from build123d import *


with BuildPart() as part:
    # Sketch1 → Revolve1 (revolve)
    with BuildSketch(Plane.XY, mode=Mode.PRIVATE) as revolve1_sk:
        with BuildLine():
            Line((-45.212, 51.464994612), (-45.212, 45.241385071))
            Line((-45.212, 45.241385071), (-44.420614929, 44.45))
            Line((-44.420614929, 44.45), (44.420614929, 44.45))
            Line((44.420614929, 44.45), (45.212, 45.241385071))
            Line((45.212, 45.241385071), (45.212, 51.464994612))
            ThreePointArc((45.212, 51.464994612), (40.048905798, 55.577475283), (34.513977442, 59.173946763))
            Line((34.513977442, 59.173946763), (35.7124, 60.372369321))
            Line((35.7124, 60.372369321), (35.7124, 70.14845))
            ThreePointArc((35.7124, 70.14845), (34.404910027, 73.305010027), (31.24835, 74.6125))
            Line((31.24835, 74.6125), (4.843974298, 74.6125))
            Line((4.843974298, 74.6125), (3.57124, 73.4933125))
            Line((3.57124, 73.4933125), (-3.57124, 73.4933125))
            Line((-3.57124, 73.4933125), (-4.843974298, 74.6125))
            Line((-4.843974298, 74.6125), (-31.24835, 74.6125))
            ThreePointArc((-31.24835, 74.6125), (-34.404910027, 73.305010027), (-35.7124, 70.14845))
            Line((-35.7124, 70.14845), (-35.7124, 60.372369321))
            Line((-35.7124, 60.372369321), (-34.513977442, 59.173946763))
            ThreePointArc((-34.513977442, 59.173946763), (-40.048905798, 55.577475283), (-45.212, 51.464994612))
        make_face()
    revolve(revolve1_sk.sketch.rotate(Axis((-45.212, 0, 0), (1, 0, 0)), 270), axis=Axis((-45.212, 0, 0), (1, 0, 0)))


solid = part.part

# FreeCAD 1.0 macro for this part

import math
import FreeCAD as App
import Part
import Sketcher

V = App.Vector
Q = App.Units.Quantity

doc = App.newDocument("Part")
body = doc.addObject("PartDesign::Body", "Body")

# Sketch on XY plane
sketch1 = body.newObject("Sketcher::SketchObject", "Sketch")
sketch1.AttachmentSupport = (doc.getObject("XY_Plane"), [""])
sketch1.MapMode = "FlatFace"
sketch1.addGeometry(Part.LineSegment(V(-45.2, 51.5, 0), V(-45.2, 45.2, 0)), False)
sketch1.addGeometry(Part.LineSegment(V(-45.2, 45.2, 0), V(-44.4, 44.5, 0)), False)
sketch1.addGeometry(Part.LineSegment(V(-44.4, 44.5, 0), V(44.4, 44.5, 0)), False)
sketch1.addGeometry(Part.LineSegment(V(44.4, 44.5, 0), V(45.2, 45.2, 0)), False)
sketch1.addGeometry(Part.LineSegment(V(45.2, 45.2, 0), V(45.2, 51.5, 0)), False)
sketch1.addGeometry(Part.ArcOfCircle(Part.Circle(V(0, 0, 0), V(0, 0, 1), 68.5), math.radians(48.7), math.radians(59.75)), False)
sketch1.addGeometry(Part.LineSegment(V(34.5, 59.2, 0), V(35.7, 60.4, 0)), False)
sketch1.addGeometry(Part.LineSegment(V(35.7, 60.4, 0), V(35.7, 70.1, 0)), False)
sketch1.addGeometry(Part.ArcOfCircle(Part.Circle(V(31.2, 70.1, 0), V(0, 0, 1), 4.5), math.radians(0), math.radians(90)), False)
sketch1.addGeometry(Part.LineSegment(V(31.2, 74.6, 0), V(4.8, 74.6, 0)), False)
sketch1.addGeometry(Part.LineSegment(V(4.8, 74.6, 0), V(3.6, 73.5, 0)), False)
sketch1.addGeometry(Part.LineSegment(V(3.6, 73.5, 0), V(-3.6, 73.5, 0)), False)
sketch1.addGeometry(Part.LineSegment(V(-3.6, 73.5, 0), V(-4.8, 74.6, 0)), False)
sketch1.addGeometry(Part.LineSegment(V(-4.8, 74.6, 0), V(-31.2, 74.6, 0)), False)
sketch1.addGeometry(Part.ArcOfCircle(Part.Circle(V(-31.2, 70.1, 0), V(0, 0, 1), 4.5), math.radians(90), math.radians(180)), False)
sketch1.addGeometry(Part.LineSegment(V(-35.7, 70.1, 0), V(-35.7, 60.4, 0)), False)
sketch1.addGeometry(Part.LineSegment(V(-35.7, 60.4, 0), V(-34.5, 59.2, 0)), False)
sketch1.addGeometry(Part.ArcOfCircle(Part.Circle(V(0, 0, 0), V(0, 0, 1), 68.5), math.radians(120.25), math.radians(131.3)), False)
sketch1.addConstraint(Sketcher.Constraint("Coincident", 0, 2, 1, 1))
sketch1.addConstraint(Sketcher.Constraint("Coincident", 1, 2, 2, 1))
sketch1.addConstraint(Sketcher.Constraint("Coincident", 2, 2, 3, 1))
sketch1.addConstraint(Sketcher.Constraint("Coincident", 3, 2, 4, 1))
sketch1.addConstraint(Sketcher.Constraint("Coincident", 4, 2, 5, 1))
sketch1.addConstraint(Sketcher.Constraint("Coincident", 5, 2, 6, 1))
sketch1.addConstraint(Sketcher.Constraint("Coincident", 6, 2, 7, 1))
sketch1.addConstraint(Sketcher.Constraint("Tangent", 7, 2, 8, 1))
sketch1.addConstraint(Sketcher.Constraint("Tangent", 8, 2, 9, 1))
sketch1.addConstraint(Sketcher.Constraint("Coincident", 9, 2, 10, 1))
sketch1.addConstraint(Sketcher.Constraint("Coincident", 10, 2, 11, 1))
sketch1.addConstraint(Sketcher.Constraint("Coincident", 11, 2, 12, 1))
sketch1.addConstraint(Sketcher.Constraint("Coincident", 12, 2, 13, 1))
sketch1.addConstraint(Sketcher.Constraint("Tangent", 13, 2, 14, 1))
sketch1.addConstraint(Sketcher.Constraint("Tangent", 14, 2, 15, 1))
sketch1.addConstraint(Sketcher.Constraint("Coincident", 15, 2, 16, 1))
sketch1.addConstraint(Sketcher.Constraint("Coincident", 16, 2, 17, 1))
sketch1.addConstraint(Sketcher.Constraint("Coincident", 17, 2, 0, 1))
sketch1.addConstraint(Sketcher.Constraint("Vertical", 0))
sketch1.addConstraint(Sketcher.Constraint("Horizontal", 2))
sketch1.addConstraint(Sketcher.Constraint("Vertical", 4))
sketch1.addConstraint(Sketcher.Constraint("Vertical", 7))
sketch1.addConstraint(Sketcher.Constraint("Horizontal", 9))
sketch1.addConstraint(Sketcher.Constraint("Horizontal", 11))
sketch1.addConstraint(Sketcher.Constraint("Horizontal", 13))
sketch1.addConstraint(Sketcher.Constraint("Vertical", 15))
sketch1.addConstraint(Sketcher.Constraint("Coincident", 5, 3, -1, 1))
sketch1.addConstraint(Sketcher.Constraint("Coincident", 17, 3, -1, 1))
sketch1.addConstraint(Sketcher.Constraint("Equal", 8, 14))
sketch1.addConstraint(Sketcher.Constraint("Equal", 5, 17))
sketch1.addConstraint(Sketcher.Constraint("Symmetric", 8, 3, 14, 3, -2))
sketch1.addConstraint(Sketcher.Constraint("Symmetric", 0, 2, 3, 2, -2))
sketch1.addConstraint(Sketcher.Constraint("Perpendicular", 1, 3))
sketch1.addConstraint(Sketcher.Constraint("Parallel", 3, 6))
sketch1.addConstraint(Sketcher.Constraint("Perpendicular", 6, 16))
sketch1.addConstraint(Sketcher.Constraint("Horizontal", 6, 2, 15, 2))
sketch1.addConstraint(Sketcher.Constraint("Horizontal", 5, 2, 16, 2))
sketch1.addConstraint(Sketcher.Constraint("Equal", 9, 13))
sketch1.addConstraint(Sketcher.Constraint("Equal", 6, 10))
sketch1.addConstraint(Sketcher.Constraint("Equal", 10, 12))
sketch1.addConstraint(Sketcher.Constraint("Radius", 5, Q("2.697 in")))
sketch1.addConstraint(Sketcher.Constraint("DistanceX", 0, 2, -1, 1, Q("1.78 in")))
sketch1.addConstraint(Sketcher.Constraint("DistanceY", -1, 1, 1, 2, Q("1.75 in")))
sketch1.addConstraint(Sketcher.Constraint("DistanceX", 11, 2, 11, 1, Q("0.2812 in")))
sketch1.addConstraint(Sketcher.Constraint("DistanceX", -1, 1, 6, 2, Q("1.406 in")))
sketch1.addConstraint(Sketcher.Constraint("DistanceY", -1, 1, 8, 2, Q("2.9375 in")))
sketch1.addConstraint(Sketcher.Constraint("Radius", 8, 4.46405))
sketch1.addConstraint(Sketcher.Constraint("DistanceX", 2, 1, 2, 2, 88.84123))
sketch1.addConstraint(Sketcher.Constraint("DistanceY", 7, 1, 7, 2, 9.776081))
sketch1.addConstraint(Sketcher.Constraint("DistanceX", 9, 2, 9, 1, 26.404376))
revolution = body.newObject("PartDesign::Revolution", "Revolution")
revolution.Profile = sketch1
revolution.ReferenceAxis = (sketch1, ["H_Axis"])
revolution.Angle = 360

doc.recompute()
